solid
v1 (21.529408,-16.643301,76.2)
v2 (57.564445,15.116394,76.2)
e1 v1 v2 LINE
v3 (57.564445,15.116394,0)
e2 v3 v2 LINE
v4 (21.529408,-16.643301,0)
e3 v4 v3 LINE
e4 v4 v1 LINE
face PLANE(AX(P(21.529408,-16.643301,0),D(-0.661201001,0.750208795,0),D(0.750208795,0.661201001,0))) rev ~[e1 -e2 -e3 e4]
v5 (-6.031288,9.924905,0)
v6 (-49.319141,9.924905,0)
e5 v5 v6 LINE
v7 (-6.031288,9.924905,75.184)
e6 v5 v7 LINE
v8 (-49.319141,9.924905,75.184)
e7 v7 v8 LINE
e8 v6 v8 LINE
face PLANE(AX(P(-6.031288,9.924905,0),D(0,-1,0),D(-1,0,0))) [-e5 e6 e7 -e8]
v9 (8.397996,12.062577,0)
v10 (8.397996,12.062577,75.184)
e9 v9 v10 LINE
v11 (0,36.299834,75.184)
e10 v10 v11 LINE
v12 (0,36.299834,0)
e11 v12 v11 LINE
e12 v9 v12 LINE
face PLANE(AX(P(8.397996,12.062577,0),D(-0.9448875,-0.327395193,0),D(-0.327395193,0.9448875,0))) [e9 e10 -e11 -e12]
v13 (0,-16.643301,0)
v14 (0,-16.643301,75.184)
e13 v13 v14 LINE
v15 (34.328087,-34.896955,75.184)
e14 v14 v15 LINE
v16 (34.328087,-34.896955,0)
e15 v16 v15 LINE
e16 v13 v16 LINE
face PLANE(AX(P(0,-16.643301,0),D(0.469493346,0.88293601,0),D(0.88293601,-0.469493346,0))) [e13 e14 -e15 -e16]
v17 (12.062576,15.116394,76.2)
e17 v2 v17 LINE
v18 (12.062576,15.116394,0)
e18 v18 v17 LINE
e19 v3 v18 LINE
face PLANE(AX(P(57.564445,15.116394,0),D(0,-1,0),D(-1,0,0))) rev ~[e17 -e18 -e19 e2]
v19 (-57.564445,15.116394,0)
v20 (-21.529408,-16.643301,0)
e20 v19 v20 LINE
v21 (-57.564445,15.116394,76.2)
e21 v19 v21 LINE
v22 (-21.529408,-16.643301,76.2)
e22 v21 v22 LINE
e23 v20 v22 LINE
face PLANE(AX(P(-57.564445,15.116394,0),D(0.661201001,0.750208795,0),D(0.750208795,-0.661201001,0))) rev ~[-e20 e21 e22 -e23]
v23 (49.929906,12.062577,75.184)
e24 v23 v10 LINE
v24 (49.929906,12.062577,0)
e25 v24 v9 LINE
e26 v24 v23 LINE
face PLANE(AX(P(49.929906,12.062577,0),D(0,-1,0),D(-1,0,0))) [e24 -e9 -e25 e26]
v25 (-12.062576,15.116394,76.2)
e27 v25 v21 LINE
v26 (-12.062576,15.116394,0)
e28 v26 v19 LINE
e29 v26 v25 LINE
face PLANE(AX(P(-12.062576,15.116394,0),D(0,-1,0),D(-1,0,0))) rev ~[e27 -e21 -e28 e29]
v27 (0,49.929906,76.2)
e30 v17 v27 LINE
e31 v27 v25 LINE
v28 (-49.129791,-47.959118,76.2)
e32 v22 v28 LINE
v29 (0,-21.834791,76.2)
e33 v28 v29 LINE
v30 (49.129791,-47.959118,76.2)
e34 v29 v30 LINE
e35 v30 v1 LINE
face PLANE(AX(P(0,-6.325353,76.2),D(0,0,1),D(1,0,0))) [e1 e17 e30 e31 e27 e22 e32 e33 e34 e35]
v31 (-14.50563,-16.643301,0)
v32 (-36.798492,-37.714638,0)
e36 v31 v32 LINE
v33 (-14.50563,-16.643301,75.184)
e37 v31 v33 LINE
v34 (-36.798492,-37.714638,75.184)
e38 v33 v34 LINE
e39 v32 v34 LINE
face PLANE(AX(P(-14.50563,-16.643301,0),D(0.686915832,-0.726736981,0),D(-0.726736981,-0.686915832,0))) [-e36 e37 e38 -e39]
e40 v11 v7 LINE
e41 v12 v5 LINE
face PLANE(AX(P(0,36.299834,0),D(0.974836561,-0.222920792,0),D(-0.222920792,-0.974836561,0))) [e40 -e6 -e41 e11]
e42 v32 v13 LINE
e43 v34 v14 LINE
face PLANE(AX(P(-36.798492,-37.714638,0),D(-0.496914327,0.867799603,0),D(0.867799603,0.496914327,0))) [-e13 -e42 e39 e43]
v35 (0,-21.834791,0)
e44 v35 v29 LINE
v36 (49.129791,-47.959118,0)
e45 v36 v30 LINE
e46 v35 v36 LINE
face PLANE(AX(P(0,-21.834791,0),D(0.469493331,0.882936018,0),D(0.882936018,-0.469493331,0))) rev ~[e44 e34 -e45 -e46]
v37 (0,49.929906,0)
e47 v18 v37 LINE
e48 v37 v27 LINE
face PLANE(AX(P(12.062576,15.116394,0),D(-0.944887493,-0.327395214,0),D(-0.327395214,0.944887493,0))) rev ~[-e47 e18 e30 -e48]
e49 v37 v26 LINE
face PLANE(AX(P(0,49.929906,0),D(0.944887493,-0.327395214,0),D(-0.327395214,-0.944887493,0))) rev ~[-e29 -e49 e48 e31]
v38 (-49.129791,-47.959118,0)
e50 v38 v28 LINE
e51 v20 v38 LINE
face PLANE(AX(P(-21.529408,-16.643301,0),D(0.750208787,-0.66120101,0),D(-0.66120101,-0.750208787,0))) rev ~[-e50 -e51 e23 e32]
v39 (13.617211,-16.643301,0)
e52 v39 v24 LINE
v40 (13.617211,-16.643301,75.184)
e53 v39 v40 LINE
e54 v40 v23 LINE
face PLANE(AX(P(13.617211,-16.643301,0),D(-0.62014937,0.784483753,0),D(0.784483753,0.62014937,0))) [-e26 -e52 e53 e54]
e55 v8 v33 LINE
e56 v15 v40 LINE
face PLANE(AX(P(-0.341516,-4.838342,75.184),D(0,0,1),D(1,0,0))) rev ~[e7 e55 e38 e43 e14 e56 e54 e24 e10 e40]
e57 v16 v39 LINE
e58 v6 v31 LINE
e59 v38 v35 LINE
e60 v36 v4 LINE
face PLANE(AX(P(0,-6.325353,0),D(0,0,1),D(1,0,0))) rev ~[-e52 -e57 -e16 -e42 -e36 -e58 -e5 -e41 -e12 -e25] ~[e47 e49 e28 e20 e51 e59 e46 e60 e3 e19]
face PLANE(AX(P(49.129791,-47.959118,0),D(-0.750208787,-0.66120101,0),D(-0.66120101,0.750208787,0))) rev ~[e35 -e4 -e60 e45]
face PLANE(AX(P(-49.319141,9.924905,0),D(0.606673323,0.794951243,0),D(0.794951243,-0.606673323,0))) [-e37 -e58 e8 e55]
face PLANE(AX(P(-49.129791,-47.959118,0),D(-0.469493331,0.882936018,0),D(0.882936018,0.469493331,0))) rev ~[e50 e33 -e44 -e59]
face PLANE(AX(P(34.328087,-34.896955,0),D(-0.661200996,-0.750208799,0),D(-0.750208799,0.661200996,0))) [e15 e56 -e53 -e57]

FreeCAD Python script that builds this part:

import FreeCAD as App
import Part
import Sketcher
from FreeCAD import Vector
Q = App.Units.Quantity

doc = App.newDocument("Part")
body = doc.addObject("PartDesign::Body", "Body")

# Sketch on XY plane
sketch1 = body.newObject("Sketcher::SketchObject", "Sketch")
sketch1.AttachmentSupport = (doc.getObject("XY_Plane"), [""])
sketch1.MapMode = "FlatFace"
sketch1.addGeometry([
    Part.LineSegment(Vector(12, 15, 0), Vector(0, 50, 0)),  # 0
    Part.LineSegment(Vector(0, 50, 0), Vector(-12, 15, 0)),  # 1
    Part.LineSegment(Vector(-12, 15, 0), Vector(-58, 15, 0)),  # 2
    Part.LineSegment(Vector(-58, 15, 0), Vector(-22, -17, 0)),  # 3
    Part.LineSegment(Vector(-22, -17, 0), Vector(-49, -48, 0)),  # 4
    Part.LineSegment(Vector(-49, -48, 0), Vector(0, -22, 0)),  # 5
    Part.LineSegment(Vector(0, -22, 0), Vector(49, -48, 0)),  # 6
    Part.LineSegment(Vector(49, -48, 0), Vector(22, -17, 0)),  # 7
    Part.LineSegment(Vector(22, -17, 0), Vector(58, 15, 0)),  # 8
    Part.LineSegment(Vector(58, 15, 0), Vector(12, 15, 0)),  # 9
], False)
sketch1.addConstraint([
    Sketcher.Constraint("Coincident", 0, 2, 1, 1),
    Sketcher.Constraint("Coincident", 1, 2, 2, 1),
    Sketcher.Constraint("Coincident", 2, 2, 3, 1),
    Sketcher.Constraint("Coincident", 3, 2, 4, 1),
    Sketcher.Constraint("Coincident", 4, 2, 5, 1),
    Sketcher.Constraint("Coincident", 5, 2, 6, 1),
    Sketcher.Constraint("Coincident", 6, 2, 7, 1),
    Sketcher.Constraint("Coincident", 7, 2, 8, 1),
    Sketcher.Constraint("Coincident", 8, 2, 9, 1),
    Sketcher.Constraint("Coincident", 9, 2, 0, 1),
    Sketcher.Constraint("Horizontal", 2),
    Sketcher.Constraint("Horizontal", 9),
    Sketcher.Constraint("Symmetric", 4, 2, 6, 2, -2),
    Sketcher.Constraint("Symmetric", 3, 2, 7, 2, -2),
    Sketcher.Constraint("Symmetric", 2, 2, 8, 2, -2),
    Sketcher.Constraint("PointOnObject", 0, 2, -2),
    Sketcher.Constraint("PointOnObject", 5, 2, -2),
    Sketcher.Constraint("Perpendicular", 3, 4),
    Sketcher.Constraint("Equal", 2, 9),
    Sketcher.Constraint("DistanceX", 2, 2, 2, 1, Q("45.501869 mm")),
    Sketcher.Constraint("DistanceY", 3, 2, -1, 1, Q("16.643301 mm")),
    Sketcher.Constraint("DistanceX", 3, 2, 6, 2, Q("70.659199 mm")),
    Sketcher.Constraint("Distance", 0, Q("36.844082 mm")),
    Sketcher.Constraint("Distance", 5, Q("55.643659 mm")),
    Sketcher.Constraint("DistanceX", 3, 2, -1, 1, Q("21.529408 mm")),
    Sketcher.Constraint("DistanceY", 5, 2, -1, 1, Q("21.834791 mm")),
    Sketcher.Constraint("DistanceY", 4, 2, 2, 2, Q("63.075512 mm")),
])
pad1 = body.newObject("PartDesign::Pad", "Pad")
pad1.Profile = sketch1
pad1.Length = Q("3 in")

# Sketch on XY plane
sketch2 = body.newObject("Sketcher::SketchObject", "Sketch001")
sketch2.AttachmentSupport = (doc.getObject("XY_Plane"), [""])
sketch2.MapMode = "FlatFace"
sketch2.addGeometry([
    Part.LineSegment(Vector(0, 36, 0), Vector(-6, 10, 0)),  # 0
    Part.LineSegment(Vector(-6, 10, 0), Vector(-49, 10, 0)),  # 1
    Part.LineSegment(Vector(-49, 10, 0), Vector(-15, -17, 0)),  # 2
    Part.LineSegment(Vector(-15, -17, 0), Vector(-37, -38, 0)),  # 3
    Part.LineSegment(Vector(-37, -38, 0), Vector(0, -17, 0)),  # 4
    Part.LineSegment(Vector(0, -17, 0), Vector(34, -35, 0)),  # 5
    Part.LineSegment(Vector(34, -35, 0), Vector(14, -17, 0)),  # 6
    Part.LineSegment(Vector(14, -17, 0), Vector(50, 12, 0)),  # 7
    Part.LineSegment(Vector(50, 12, 0), Vector(8, 12, 0)),  # 8
    Part.LineSegment(Vector(8, 12, 0), Vector(0, 36, 0)),  # 9
], False)
sketch2.addConstraint([
    Sketcher.Constraint("Coincident", 0, 2, 1, 1),
    Sketcher.Constraint("Coincident", 1, 2, 2, 1),
    Sketcher.Constraint("Coincident", 2, 2, 3, 1),
    Sketcher.Constraint("Coincident", 3, 2, 4, 1),
    Sketcher.Constraint("Coincident", 4, 2, 5, 1),
    Sketcher.Constraint("Coincident", 5, 2, 6, 1),
    Sketcher.Constraint("Coincident", 6, 2, 7, 1),
    Sketcher.Constraint("Coincident", 7, 2, 8, 1),
    Sketcher.Constraint("Coincident", 8, 2, 9, 1),
    Sketcher.Constraint("Coincident", 9, 2, 0, 1),
    Sketcher.Constraint("Horizontal", 1),
    Sketcher.Constraint("Horizontal", 8),
    Sketcher.Constraint("PointOnObject", 4, 2, -2),
    Sketcher.Constraint("PointOnObject", 9, 2, -2),
    Sketcher.Constraint("Horizontal", 2, 2, 4, 2),
    Sketcher.Constraint("Horizontal", 4, 2, 6, 2),
    Sketcher.Constraint("DistanceX", 8, 2, 8, 1, Q("41.53191 mm")),
    Sketcher.Constraint("DistanceY", 2, 2, -1, 1, Q("16.643301 mm")),
    Sketcher.Constraint("DistanceX", 0, 2, 6, 2, Q("19.648499 mm")),
    Sketcher.Constraint("Distance", 7, Q("46.288651 mm")),
    Sketcher.Constraint("DistanceX", 1, 2, 1, 1, Q("43.287853 mm")),
    Sketcher.Constraint("DistanceX", 1, 2, -1, 1, Q("49.319141 mm")),
    Sketcher.Constraint("DistanceX", 2, 2, -1, 1, Q("14.50563 mm")),
    Sketcher.Constraint("DistanceX", 1, 2, 3, 2, Q("12.520649 mm")),
    Sketcher.Constraint("DistanceY", 5, 2, 0, 2, Q("44.82186 mm")),
    Sketcher.Constraint("DistanceX", 3, 2, 5, 2, Q("71.126579 mm")),
    Sketcher.Constraint("DistanceX", 5, 2, 7, 2, Q("15.601819 mm")),
    Sketcher.Constraint("DistanceY", 5, 2, 7, 2, Q("46.959532 mm")),
    Sketcher.Constraint("DistanceY", 0, 2, 9, 2, Q("26.374929 mm")),
    Sketcher.Constraint("Distance", 3, Q("30.675282 mm")),
])
pocket1 = body.newObject("PartDesign::Pocket", "Pocket")
pocket1.Profile = sketch2
pocket1.Length = Q("2.96 in")
pocket1.Reversed = True

doc.recompute()
